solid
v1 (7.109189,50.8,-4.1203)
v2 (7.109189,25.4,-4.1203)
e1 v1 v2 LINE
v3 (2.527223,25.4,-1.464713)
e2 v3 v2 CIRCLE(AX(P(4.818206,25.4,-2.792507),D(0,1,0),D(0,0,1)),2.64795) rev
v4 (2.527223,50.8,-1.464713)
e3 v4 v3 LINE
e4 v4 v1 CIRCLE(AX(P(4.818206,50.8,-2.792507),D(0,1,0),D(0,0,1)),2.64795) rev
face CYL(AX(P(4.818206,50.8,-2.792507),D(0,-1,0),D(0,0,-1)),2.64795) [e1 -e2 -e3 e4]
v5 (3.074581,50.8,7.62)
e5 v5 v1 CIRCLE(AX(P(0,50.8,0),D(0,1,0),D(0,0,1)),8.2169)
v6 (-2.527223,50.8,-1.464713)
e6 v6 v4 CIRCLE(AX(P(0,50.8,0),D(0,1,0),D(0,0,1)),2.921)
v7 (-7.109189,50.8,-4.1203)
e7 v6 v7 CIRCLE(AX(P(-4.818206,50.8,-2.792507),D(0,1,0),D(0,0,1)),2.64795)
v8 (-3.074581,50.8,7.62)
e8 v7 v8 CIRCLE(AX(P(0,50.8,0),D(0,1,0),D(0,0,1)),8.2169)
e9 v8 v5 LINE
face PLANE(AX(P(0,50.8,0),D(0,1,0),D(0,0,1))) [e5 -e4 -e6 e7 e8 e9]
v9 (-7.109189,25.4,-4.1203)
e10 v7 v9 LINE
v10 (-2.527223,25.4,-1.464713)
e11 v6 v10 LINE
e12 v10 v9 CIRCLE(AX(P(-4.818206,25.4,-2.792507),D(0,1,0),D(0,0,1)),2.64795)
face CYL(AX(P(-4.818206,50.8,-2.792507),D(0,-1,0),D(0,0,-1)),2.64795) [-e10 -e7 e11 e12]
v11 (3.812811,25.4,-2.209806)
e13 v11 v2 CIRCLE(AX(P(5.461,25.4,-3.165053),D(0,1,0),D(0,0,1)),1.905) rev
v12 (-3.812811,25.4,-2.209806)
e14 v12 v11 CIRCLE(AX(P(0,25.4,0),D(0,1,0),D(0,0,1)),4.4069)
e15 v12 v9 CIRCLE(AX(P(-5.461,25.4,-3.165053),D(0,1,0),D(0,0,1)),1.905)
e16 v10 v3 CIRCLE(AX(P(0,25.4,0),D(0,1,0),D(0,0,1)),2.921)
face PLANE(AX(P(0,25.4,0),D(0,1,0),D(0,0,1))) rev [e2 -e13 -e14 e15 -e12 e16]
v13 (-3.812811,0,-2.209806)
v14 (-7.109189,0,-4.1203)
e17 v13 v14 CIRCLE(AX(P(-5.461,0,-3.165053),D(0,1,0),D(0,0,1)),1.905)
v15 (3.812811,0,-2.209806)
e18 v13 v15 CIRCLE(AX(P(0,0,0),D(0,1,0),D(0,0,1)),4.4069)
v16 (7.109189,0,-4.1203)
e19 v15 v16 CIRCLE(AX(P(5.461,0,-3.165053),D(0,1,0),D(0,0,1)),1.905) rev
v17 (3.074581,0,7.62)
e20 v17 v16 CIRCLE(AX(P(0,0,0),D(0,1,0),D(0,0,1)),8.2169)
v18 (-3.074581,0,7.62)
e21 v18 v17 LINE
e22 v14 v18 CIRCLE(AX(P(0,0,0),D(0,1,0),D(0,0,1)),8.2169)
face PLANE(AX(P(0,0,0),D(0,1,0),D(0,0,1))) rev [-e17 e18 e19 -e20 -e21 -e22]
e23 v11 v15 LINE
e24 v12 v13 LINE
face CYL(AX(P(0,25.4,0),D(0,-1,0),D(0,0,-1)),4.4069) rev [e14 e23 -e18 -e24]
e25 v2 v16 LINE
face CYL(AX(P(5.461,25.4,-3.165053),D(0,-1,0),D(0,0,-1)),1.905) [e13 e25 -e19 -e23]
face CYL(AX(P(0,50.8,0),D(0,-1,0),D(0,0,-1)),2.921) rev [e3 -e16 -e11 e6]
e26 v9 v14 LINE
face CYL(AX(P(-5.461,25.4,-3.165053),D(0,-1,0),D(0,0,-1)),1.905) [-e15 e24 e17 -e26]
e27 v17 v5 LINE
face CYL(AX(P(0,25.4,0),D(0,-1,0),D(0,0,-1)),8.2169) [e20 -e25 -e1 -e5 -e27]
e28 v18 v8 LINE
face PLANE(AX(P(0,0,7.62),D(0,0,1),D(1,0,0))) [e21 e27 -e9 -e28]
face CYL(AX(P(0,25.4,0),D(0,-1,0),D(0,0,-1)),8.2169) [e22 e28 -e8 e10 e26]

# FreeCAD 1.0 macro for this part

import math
import FreeCAD as App
import Part
import Sketcher
Q = App.Units.Quantity

doc = App.newDocument("Part")
body = doc.addObject("PartDesign::Body", "Body")

# Sketch on XZ plane
sketch1 = doc.addObject("Sketcher::SketchObject", "Sketch")
body.addObject(sketch1)
sketch1.AttachmentSupport = (doc.XZ_Plane, [""])
sketch1.MapMode = "FlatFace"
sketch1.addGeometry(Part.ArcOfCircle(Part.Circle(App.Vector(0, 0, 0), App.Vector(0, 0, 1), 4.4069), math.radians(-30.095461), math.radians(0)), False)
sketch1.addGeometry(Part.ArcOfCircle(Part.Circle(App.Vector(0, 0, 0), App.Vector(0, 0, 1), 4.4069), math.radians(0), math.radians(210.095461)), False)
sketch1.addGeometry(Part.ArcOfCircle(Part.Circle(App.Vector(-5.461, -3.165053, 0), App.Vector(0, 0, 1), 1.905), math.radians(-149.904539), math.radians(30.095461)), False)
sketch1.addGeometry(Part.ArcOfCircle(Part.Circle(App.Vector(0, 0, 0), App.Vector(0, 0, 1), 8.2169), math.radians(0), math.radians(210.095461)), False)
sketch1.addGeometry(Part.ArcOfCircle(Part.Circle(App.Vector(0, 0, 0), App.Vector(0, 0, 1), 8.2169), math.radians(-30.095461), math.radians(0)), False)
sketch1.addGeometry(Part.ArcOfCircle(Part.Circle(App.Vector(5.461, -3.165053, 0), App.Vector(0, 0, 1), 1.905), math.radians(149.904539), math.radians(329.904539)), False)
sketch1.addConstraint(Sketcher.Constraint("Tangent", 0, 2, 1, 1))
sketch1.addConstraint(Sketcher.Constraint("Tangent", 1, 2, 2, 2))
sketch1.addConstraint(Sketcher.Constraint("Tangent", 2, 1, 3, 2))
sketch1.addConstraint(Sketcher.Constraint("Tangent", 3, 1, 4, 2))
sketch1.addConstraint(Sketcher.Constraint("Tangent", 4, 1, 5, 2))
sketch1.addConstraint(Sketcher.Constraint("Tangent", 5, 1, 0, 1))
sketch1.addConstraint(Sketcher.Constraint("Coincident", 0, 3, -1, 1))
sketch1.addConstraint(Sketcher.Constraint("Coincident", 3, 3, -1, 1))
sketch1.addConstraint(Sketcher.Constraint("Equal", 0, 1))
sketch1.addConstraint(Sketcher.Constraint("Equal", 3, 4))
sketch1.addConstraint(Sketcher.Constraint("PointOnObject", 0, 2, -1))
sketch1.addConstraint(Sketcher.Constraint("PointOnObject", 3, 1, -1))
sketch1.addConstraint(Sketcher.Constraint("Horizontal", 2, 3, 5, 3))
sketch1.addConstraint(Sketcher.Constraint("Radius", 2, Q("0.075 in")))
sketch1.addConstraint(Sketcher.Constraint("Radius", 0, Q("0.1735 in")))
sketch1.addConstraint(Sketcher.Constraint("DistanceX", 2, 3, 5, 3, Q("0.43 in")))
pad1 = doc.addObject("PartDesign::Pad", "Pad")
body.addObject(pad1)
pad1.Profile = sketch1
pad1.Length = Q("1 in")
pad1.Reversed = True

# Sketch on XZ plane
sketch2 = doc.addObject("Sketcher::SketchObject", "Sketch001")
body.addObject(sketch2)
sketch2.AttachmentSupport = (doc.XZ_Plane, [""])
sketch2.MapMode = "FlatFace"
sketch2.AttachmentOffset = App.Placement(App.Vector(0, 0, -1 * 25.4), App.Rotation())
sketch2.addGeometry(Part.ArcOfCircle(Part.Circle(App.Vector(0, 0, 0), App.Vector(0, 0, 1), 8.2169), math.radians(-30.095461), math.radians(210.095461)), False)
sketch2.addGeometry(Part.ArcOfCircle(Part.Circle(App.Vector(4.818206, -2.792507, 0), App.Vector(0, 0, 1), 2.64795), math.radians(149.904539), math.radians(329.904539)), False)
sketch2.addGeometry(Part.ArcOfCircle(Part.Circle(App.Vector(0, 0, 0), App.Vector(0, 0, 1), 2.921), math.radians(-30.095461), math.radians(0)), False)
sketch2.addGeometry(Part.ArcOfCircle(Part.Circle(App.Vector(0, 0, 0), App.Vector(0, 0, 1), 2.921), math.radians(0), math.radians(210.095461)), False)
sketch2.addGeometry(Part.ArcOfCircle(Part.Circle(App.Vector(-4.818206, -2.792507, 0), App.Vector(0, 0, 1), 2.64795), math.radians(-149.904539), math.radians(30.095461)), False)
sketch2.addConstraint(Sketcher.Constraint("Tangent", 0, 1, 1, 2))
sketch2.addConstraint(Sketcher.Constraint("Tangent", 1, 1, 2, 1))
sketch2.addConstraint(Sketcher.Constraint("Tangent", 2, 2, 3, 1))
sketch2.addConstraint(Sketcher.Constraint("Tangent", 3, 2, 4, 2))
sketch2.addConstraint(Sketcher.Constraint("Tangent", 4, 1, 0, 2))
sketch2.addConstraint(Sketcher.Constraint("Coincident", 0, 3, -1, 1))
sketch2.addConstraint(Sketcher.Constraint("Coincident", 2, 3, -1, 1))
sketch2.addConstraint(Sketcher.Constraint("Equal", 2, 3))
sketch2.addConstraint(Sketcher.Constraint("PointOnObject", 2, 2, -1))
sketch2.addConstraint(Sketcher.Constraint("Horizontal", 1, 3, 4, 3))
sketch2.addConstraint(Sketcher.Constraint("Radius", 2, Q("0.115 in")))
sketch2.addConstraint(Sketcher.Constraint("Radius", 0, Q("0.3235 in")))
sketch2.addConstraint(Sketcher.Constraint("DistanceY", 0, 1, -1, 1, 4.1203))
pad2 = doc.addObject("PartDesign::Pad", "Pad001")
body.addObject(pad2)
pad2.Profile = sketch2
pad2.Length = Q("1 in")
pad2.Reversed = True

# Sketch on XZ plane
sketch3 = doc.addObject("Sketcher::SketchObject", "Sketch002")
body.addObject(sketch3)
sketch3.AttachmentSupport = (doc.XZ_Plane, [""])
sketch3.MapMode = "FlatFace"
sketch3.AttachmentOffset = App.Placement(App.Vector(0, 0, -2 * 25.4), App.Rotation())
sketch3.addGeometry(Part.LineSegment(App.Vector(3.074581, 7.62, 0), App.Vector(-3.074581, 7.62, 0)), False)
sketch3.addGeometry(Part.ArcOfCircle(Part.Circle(App.Vector(0, 0, 0), App.Vector(0, 0, 1), 8.2169), math.radians(68.026503), math.radians(111.973497)), False)
sketch3.addConstraint(Sketcher.Constraint("Coincident", 0, 1, 1, 1))
sketch3.addConstraint(Sketcher.Constraint("Coincident", 1, 2, 0, 2))
sketch3.addConstraint(Sketcher.Constraint("Horizontal", 0))
sketch3.addConstraint(Sketcher.Constraint("Coincident", 1, 3, -1, 1))
sketch3.addConstraint(Sketcher.Constraint("DistanceY", -1, 1, 0, 1, Q("0.3 in")))
sketch3.addConstraint(Sketcher.Constraint("Radius", 1, Q("0.3235 in")))
pocket1 = doc.addObject("PartDesign::Pocket", "Pocket")
body.addObject(pocket1)
pocket1.Profile = sketch3
pocket1.Type = "ThroughAll"
pocket1.Reversed = True

doc.recompute()
